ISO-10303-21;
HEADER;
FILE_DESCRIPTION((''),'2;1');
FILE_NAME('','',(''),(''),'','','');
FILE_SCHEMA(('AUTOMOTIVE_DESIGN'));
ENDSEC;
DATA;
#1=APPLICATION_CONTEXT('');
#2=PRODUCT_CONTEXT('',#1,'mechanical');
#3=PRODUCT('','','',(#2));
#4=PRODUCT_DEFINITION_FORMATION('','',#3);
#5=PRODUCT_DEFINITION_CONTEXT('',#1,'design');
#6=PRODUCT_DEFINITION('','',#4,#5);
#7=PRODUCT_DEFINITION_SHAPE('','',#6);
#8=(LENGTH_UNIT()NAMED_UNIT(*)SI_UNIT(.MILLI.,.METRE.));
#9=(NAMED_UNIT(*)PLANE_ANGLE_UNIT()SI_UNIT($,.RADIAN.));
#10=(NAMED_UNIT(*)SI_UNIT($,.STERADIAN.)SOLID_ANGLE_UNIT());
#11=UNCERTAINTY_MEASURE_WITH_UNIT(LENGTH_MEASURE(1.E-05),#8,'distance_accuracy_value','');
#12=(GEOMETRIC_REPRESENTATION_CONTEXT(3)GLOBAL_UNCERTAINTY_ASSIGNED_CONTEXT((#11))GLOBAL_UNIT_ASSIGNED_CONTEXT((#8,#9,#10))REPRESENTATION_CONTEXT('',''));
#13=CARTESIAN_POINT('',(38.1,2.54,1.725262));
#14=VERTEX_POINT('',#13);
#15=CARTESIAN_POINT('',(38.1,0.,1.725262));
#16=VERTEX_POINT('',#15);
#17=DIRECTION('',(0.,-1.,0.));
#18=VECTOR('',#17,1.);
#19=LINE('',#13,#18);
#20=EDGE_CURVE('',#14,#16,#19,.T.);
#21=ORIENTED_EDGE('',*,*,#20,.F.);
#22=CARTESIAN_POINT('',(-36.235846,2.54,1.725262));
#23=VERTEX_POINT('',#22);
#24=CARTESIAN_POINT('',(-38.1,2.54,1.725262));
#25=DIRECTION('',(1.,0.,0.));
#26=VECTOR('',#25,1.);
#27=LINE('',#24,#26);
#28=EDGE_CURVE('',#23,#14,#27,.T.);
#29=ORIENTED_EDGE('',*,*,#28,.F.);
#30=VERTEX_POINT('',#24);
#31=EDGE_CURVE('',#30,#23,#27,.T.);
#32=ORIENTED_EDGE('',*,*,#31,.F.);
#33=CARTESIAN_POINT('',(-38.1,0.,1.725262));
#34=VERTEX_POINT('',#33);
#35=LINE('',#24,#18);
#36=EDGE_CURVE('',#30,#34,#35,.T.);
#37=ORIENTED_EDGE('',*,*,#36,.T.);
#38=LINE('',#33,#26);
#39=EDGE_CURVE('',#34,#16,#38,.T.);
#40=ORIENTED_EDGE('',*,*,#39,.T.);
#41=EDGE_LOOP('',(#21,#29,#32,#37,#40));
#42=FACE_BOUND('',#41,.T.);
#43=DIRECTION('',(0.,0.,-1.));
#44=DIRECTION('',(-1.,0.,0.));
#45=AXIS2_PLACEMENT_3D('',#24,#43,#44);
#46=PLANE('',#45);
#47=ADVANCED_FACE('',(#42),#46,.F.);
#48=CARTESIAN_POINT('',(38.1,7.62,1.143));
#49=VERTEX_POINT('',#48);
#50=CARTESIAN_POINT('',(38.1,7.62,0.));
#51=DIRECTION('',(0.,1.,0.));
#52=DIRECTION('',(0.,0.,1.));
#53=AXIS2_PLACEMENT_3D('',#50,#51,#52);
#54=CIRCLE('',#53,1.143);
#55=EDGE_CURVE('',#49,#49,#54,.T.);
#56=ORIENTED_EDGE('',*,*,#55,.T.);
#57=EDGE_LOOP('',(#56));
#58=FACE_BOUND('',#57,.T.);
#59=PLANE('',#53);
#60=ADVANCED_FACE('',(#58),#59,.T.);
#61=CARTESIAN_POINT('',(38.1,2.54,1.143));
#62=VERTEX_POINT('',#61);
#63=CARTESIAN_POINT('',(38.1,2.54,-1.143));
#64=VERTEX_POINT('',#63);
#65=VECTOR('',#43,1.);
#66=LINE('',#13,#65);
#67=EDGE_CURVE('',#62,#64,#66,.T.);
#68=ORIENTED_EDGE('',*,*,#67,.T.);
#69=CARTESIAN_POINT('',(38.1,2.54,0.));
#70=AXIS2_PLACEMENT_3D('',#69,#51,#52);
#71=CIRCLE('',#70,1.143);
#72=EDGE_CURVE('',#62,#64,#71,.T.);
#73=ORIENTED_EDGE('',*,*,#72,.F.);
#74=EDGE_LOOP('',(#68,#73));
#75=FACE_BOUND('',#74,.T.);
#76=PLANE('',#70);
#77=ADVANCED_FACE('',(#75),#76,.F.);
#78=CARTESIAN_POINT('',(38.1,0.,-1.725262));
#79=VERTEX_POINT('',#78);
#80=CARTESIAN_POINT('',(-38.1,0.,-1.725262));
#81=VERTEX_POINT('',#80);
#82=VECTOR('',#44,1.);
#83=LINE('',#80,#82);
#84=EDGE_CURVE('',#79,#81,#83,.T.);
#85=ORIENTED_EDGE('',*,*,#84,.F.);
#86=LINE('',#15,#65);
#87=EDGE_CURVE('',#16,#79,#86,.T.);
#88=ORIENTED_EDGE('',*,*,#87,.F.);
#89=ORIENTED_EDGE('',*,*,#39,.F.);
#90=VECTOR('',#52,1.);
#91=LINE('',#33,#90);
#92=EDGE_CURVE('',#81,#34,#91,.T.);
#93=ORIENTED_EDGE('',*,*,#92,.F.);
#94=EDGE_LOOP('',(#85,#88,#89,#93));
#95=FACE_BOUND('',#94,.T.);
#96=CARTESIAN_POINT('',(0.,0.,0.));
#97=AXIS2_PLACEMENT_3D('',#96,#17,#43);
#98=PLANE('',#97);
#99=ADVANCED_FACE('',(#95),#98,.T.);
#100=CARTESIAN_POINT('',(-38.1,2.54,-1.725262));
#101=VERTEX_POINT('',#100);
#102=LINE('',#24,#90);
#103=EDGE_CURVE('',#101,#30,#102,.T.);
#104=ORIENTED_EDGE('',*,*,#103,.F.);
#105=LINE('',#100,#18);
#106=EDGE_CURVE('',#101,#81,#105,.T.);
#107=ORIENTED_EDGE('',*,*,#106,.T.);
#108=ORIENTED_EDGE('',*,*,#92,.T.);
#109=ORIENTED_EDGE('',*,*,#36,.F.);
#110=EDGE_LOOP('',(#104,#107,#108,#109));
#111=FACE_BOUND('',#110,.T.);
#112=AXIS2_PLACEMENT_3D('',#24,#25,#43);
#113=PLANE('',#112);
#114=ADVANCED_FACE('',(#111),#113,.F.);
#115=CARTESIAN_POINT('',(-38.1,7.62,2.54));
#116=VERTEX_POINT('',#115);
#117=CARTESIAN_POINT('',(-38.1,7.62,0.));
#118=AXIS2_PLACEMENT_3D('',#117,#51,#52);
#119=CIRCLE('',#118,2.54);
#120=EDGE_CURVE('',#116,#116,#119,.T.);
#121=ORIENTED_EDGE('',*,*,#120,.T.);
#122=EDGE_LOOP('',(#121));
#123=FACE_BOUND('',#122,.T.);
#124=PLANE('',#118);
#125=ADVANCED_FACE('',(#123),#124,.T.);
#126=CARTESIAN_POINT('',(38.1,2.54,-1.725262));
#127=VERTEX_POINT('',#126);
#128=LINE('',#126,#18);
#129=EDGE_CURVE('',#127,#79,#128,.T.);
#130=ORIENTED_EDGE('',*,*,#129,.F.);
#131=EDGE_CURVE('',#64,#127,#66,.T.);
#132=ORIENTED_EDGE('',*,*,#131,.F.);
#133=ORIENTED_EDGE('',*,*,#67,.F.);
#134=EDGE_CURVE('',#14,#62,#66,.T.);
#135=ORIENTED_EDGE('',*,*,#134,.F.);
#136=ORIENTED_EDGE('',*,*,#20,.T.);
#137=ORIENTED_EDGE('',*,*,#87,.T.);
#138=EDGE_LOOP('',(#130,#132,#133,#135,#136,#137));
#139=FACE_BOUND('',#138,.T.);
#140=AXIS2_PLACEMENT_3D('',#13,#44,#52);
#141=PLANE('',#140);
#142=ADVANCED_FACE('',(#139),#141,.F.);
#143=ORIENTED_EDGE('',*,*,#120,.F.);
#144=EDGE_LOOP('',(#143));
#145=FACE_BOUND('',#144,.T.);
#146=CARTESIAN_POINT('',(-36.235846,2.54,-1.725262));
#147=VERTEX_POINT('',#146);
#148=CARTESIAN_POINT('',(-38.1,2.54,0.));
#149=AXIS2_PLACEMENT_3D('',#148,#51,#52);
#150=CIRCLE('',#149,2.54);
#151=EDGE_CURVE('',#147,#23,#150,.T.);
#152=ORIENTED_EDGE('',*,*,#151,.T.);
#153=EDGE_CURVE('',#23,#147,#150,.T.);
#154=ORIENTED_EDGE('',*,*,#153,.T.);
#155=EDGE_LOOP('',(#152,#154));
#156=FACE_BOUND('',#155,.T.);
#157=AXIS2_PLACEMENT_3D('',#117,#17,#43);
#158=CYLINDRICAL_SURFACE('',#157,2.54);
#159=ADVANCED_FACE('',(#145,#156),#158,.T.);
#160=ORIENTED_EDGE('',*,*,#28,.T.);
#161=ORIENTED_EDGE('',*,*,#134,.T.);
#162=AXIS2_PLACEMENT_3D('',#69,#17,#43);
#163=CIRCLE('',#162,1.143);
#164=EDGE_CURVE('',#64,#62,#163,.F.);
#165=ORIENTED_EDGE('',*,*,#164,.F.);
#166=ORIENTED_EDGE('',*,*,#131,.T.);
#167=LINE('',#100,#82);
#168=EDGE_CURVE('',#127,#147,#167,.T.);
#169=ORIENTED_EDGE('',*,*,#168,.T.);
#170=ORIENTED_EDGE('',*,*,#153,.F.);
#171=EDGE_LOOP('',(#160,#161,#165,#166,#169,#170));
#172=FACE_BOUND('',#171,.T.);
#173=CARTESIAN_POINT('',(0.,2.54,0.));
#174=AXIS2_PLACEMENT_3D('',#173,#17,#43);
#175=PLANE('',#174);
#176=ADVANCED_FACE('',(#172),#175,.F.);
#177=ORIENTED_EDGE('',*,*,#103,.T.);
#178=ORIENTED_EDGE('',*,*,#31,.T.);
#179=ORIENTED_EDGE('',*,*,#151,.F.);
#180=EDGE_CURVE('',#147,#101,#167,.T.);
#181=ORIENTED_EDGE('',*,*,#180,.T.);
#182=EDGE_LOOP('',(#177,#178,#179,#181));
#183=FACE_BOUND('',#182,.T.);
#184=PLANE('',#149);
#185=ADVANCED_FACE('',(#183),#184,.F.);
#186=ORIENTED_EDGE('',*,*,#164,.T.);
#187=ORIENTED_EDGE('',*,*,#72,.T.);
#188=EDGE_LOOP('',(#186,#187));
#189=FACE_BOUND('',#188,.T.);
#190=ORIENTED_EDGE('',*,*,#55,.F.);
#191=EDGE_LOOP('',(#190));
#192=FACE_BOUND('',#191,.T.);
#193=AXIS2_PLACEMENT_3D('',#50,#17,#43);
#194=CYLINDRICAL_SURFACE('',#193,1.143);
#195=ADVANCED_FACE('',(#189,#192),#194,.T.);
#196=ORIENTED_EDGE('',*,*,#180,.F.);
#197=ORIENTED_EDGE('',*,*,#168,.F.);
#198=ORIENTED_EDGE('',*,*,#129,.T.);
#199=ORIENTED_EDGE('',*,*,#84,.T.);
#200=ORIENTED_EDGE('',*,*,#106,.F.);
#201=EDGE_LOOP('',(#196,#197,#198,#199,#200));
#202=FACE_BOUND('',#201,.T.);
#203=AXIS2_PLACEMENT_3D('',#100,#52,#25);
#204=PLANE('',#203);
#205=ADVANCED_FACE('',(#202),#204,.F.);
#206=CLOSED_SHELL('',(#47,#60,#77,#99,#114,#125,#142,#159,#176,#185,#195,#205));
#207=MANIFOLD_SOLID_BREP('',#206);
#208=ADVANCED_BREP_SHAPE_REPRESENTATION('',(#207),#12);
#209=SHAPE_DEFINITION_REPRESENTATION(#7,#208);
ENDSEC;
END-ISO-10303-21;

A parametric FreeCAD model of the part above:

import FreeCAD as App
import Part
import Sketcher

V = App.Vector
Q = App.Units.Quantity

doc = App.newDocument("Part")
body = doc.addObject("PartDesign::Body", "Body")

# Sketch on XZ plane
sketch1 = body.newObject("Sketcher::SketchObject", "Sketch")
sketch1.AttachmentSupport = (doc.getObject("XZ_Plane"), [""])
sketch1.MapMode = "FlatFace"
sketch1.addGeometry([
    Part.LineSegment(V(-38.1, -1.725262, 0), V(-38.1, 1.725262, 0)),
    Part.LineSegment(V(-38.1, 1.725262, 0), V(38.1, 1.725262, 0)),
    Part.LineSegment(V(38.1, 1.725262, 0), V(38.1, -1.725262, 0)),
    Part.LineSegment(V(38.1, -1.725262, 0), V(-38.1, -1.725262, 0)),
], False)
sketch1.addConstraint([
    Sketcher.Constraint("Coincident", 0, 2, 1, 1),
    Sketcher.Constraint("Coincident", 1, 2, 2, 1),
    Sketcher.Constraint("Coincident", 2, 2, 3, 1),
    Sketcher.Constraint("Coincident", 3, 2, 0, 1),
    Sketcher.Constraint("Vertical", 0),
    Sketcher.Constraint("Horizontal", 1),
    Sketcher.Constraint("Vertical", 2),
    Sketcher.Constraint("Horizontal", 3),
    Sketcher.Constraint("Symmetric", 0, 2, 2, 2, -1, 1),
    Sketcher.Constraint("DistanceX", 1, 1, 1, 2, Q("3 in")),
    Sketcher.Constraint("DistanceY", 0, 1, 0, 2, 3.450525),
])
pad1 = body.newObject("PartDesign::Pad", "Pad")
pad1.Profile = sketch1
pad1.Length = Q("0.1 in")
pad1.Reversed = True

# Sketch on XZ plane
sketch2 = body.newObject("Sketcher::SketchObject", "Sketch001")
sketch2.AttachmentSupport = (doc.getObject("XZ_Plane"), [""])
sketch2.MapMode = "FlatFace"
sketch2.AttachmentOffset = App.Placement(V(0, 0, -0.1 * 25.4), App.Rotation())
sketch2.addGeometry(Part.Circle(V(-38.1, 0, 0), V(0, 0, 1), 2.54), False)
sketch2.addConstraint([
    Sketcher.Constraint("PointOnObject", 0, 3, -1),
    Sketcher.Constraint("Diameter", 0, Q("0.2 in")),
    Sketcher.Constraint("DistanceX", 0, 3, -1, 1, Q("1.5 in")),
])
pad2 = body.newObject("PartDesign::Pad", "Pad001")
pad2.Profile = sketch2
pad2.Length = Q("0.2 in")
pad2.Reversed = True

# Sketch on XZ plane
sketch3 = body.newObject("Sketcher::SketchObject", "Sketch002")
sketch3.AttachmentSupport = (doc.getObject("XZ_Plane"), [""])
sketch3.MapMode = "FlatFace"
sketch3.AttachmentOffset = App.Placement(V(0, 0, -0.1 * 25.4), App.Rotation())
sketch3.addGeometry(Part.Circle(V(38.1, 0, 0), V(0, 0, 1), 1.143), False)
sketch3.addConstraint([
    Sketcher.Constraint("PointOnObject", 0, 3, -1),
    Sketcher.Constraint("Diameter", 0, Q("0.09 in")),
    Sketcher.Constraint("DistanceX", -1, 1, 0, 3, Q("1.5 in")),
])
pad3 = body.newObject("PartDesign::Pad", "Pad002")
pad3.Profile = sketch3
pad3.Length = Q("0.2 in")
pad3.Reversed = True

doc.recompute()
